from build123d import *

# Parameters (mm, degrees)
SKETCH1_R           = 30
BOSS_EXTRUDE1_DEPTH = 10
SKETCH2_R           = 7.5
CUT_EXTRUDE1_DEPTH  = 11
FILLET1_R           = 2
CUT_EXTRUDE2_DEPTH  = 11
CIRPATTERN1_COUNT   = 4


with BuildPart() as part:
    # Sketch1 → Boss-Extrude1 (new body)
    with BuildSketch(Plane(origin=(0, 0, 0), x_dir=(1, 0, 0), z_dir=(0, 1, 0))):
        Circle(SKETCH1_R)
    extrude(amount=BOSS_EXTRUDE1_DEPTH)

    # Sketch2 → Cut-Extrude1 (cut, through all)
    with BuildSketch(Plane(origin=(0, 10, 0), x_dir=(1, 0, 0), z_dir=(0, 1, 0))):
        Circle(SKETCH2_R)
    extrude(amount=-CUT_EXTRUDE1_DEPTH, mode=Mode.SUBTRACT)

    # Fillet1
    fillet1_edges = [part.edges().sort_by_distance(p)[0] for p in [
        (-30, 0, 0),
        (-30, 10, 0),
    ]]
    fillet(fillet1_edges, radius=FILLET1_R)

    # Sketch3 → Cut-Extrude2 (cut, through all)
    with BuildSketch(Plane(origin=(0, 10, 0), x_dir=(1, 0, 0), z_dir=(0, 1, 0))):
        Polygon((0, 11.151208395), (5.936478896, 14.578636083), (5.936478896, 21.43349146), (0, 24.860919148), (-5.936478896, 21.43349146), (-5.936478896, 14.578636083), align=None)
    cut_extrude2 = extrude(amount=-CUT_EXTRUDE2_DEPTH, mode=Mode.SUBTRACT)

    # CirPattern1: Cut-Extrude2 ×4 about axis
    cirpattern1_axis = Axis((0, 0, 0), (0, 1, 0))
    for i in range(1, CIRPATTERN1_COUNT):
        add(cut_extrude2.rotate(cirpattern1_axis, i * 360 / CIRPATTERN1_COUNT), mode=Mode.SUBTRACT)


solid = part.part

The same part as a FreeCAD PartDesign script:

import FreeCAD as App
import Part
import Sketcher
Q = App.Units.Quantity


def edges_at(feature, points):
    """Names of the edges that pass closest to the given points."""
    edges = feature.Shape.Edges
    near = lambda p: min(range(len(edges)), key=lambda i: edges[i].distToShape(Part.Vertex(*p))[0])
    return sorted({f"Edge{near(p) + 1}" for p in points})

doc = App.newDocument("Part")
body = doc.addObject("PartDesign::Body", "Body")

sketch1 = doc.addObject("Sketcher::SketchObject", "Sketch")
body.addObject(sketch1)
sketch1.AttachmentSupport = (doc.XZ_Plane, [""])
sketch1.MapMode = "FlatFace"
sketch1.addGeometry(Part.Circle(App.Vector(0, 0, 0), App.Vector(0, 0, 1), 30), False)
sketch1.addConstraint([
    Sketcher.Constraint("Coincident", 0, 3, -1, 1),
    Sketcher.Constraint("Diameter", 0, Q("60 mm")),
])
pad1 = doc.addObject("PartDesign::Pad", "Pad")
body.addObject(pad1)
pad1.Profile = sketch1
pad1.Length = 10
pad1.Reversed = True

sketch2 = doc.addObject("Sketcher::SketchObject", "Sketch001")
body.addObject(sketch2)
sketch2.AttachmentSupport = (doc.XZ_Plane, [""])
sketch2.MapMode = "FlatFace"
sketch2.AttachmentOffset = App.Placement(App.Vector(0, 0, -10), App.Rotation())
sketch2.addGeometry(Part.Circle(App.Vector(0, 0, 0), App.Vector(0, 0, 1), 8), False)
sketch2.addConstraint([
    Sketcher.Constraint("Coincident", 0, 3, -1, 1),
    Sketcher.Constraint("Diameter", 0, Q("15 mm")),
])
pocket1 = doc.addObject("PartDesign::Pocket", "Pocket")
body.addObject(pocket1)
pocket1.Profile = sketch2
pocket1.Type = "ThroughAll"
pocket1.Reversed = True
doc.recompute()

fillet = doc.addObject("PartDesign::Fillet", "Fillet")
body.addObject(fillet)
fillet.Base = (pocket1, edges_at(pocket1, [(-30, 0, 0), (-30, 10, 0)]))
fillet.Radius = 2

sketch3 = doc.addObject("Sketcher::SketchObject", "Sketch002")
body.addObject(sketch3)
sketch3.AttachmentSupport = (doc.XZ_Plane, [""])
sketch3.MapMode = "FlatFace"
sketch3.AttachmentOffset = App.Placement(App.Vector(0, 0, -10), App.Rotation())
sketch3.addGeometry([
    Part.LineSegment(App.Vector(0, -11, 0), App.Vector(6, -15, 0)),
    Part.LineSegment(App.Vector(6, -15, 0), App.Vector(6, -21, 0)),
    Part.LineSegment(App.Vector(6, -21, 0), App.Vector(0, -25, 0)),
    Part.LineSegment(App.Vector(0, -25, 0), App.Vector(-6, -21, 0)),
    Part.LineSegment(App.Vector(-6, -21, 0), App.Vector(-6, -15, 0)),
    Part.LineSegment(App.Vector(-6, -15, 0), App.Vector(0, -11, 0)),
], False)
sketch3.addConstraint([
    Sketcher.Constraint("Coincident", 0, 2, 1, 1),
    Sketcher.Constraint("Coincident", 1, 2, 2, 1),
    Sketcher.Constraint("Coincident", 2, 2, 3, 1),
    Sketcher.Constraint("Coincident", 3, 2, 4, 1),
    Sketcher.Constraint("Coincident", 4, 2, 5, 1),
    Sketcher.Constraint("Coincident", 5, 2, 0, 1),
    Sketcher.Constraint("Vertical", 1),
    Sketcher.Constraint("Vertical", 4),
    Sketcher.Constraint("Symmetric", 1, 2, 3, 2, -2),
    Sketcher.Constraint("PointOnObject", 2, 2, -2),
    Sketcher.Constraint("PointOnObject", 5, 2, -2),
    Sketcher.Constraint("Parallel", 0, 3),
    Sketcher.Constraint("Parallel", 2, 5),
    Sketcher.Constraint("Angle", 0, Q("-30 deg")),
    Sketcher.Constraint("DistanceY", 1, 2, 1, 1, Q("6.854855 mm")),
    Sketcher.Constraint("DistanceX", -1, 1, 0, 2, Q("5.936479 mm")),
    Sketcher.Constraint("DistanceY", 1, 2, -1, 1, Q("21.433491 mm")),
])
pocket2 = doc.addObject("PartDesign::Pocket", "Pocket001")
body.addObject(pocket2)
pocket2.Profile = sketch3
pocket2.Type = "ThroughAll"
pocket2.Reversed = True
doc.recompute()

polarpattern = doc.addObject("PartDesign::PolarPattern", "PolarPattern")
body.addObject(polarpattern)
polarpattern.Originals = [pocket2]
polarpattern.Axis = (doc.Y_Axis, [""])
polarpattern.Angle = 360
polarpattern.Occurrences = 4
body.Tip = polarpattern

doc.recompute()
